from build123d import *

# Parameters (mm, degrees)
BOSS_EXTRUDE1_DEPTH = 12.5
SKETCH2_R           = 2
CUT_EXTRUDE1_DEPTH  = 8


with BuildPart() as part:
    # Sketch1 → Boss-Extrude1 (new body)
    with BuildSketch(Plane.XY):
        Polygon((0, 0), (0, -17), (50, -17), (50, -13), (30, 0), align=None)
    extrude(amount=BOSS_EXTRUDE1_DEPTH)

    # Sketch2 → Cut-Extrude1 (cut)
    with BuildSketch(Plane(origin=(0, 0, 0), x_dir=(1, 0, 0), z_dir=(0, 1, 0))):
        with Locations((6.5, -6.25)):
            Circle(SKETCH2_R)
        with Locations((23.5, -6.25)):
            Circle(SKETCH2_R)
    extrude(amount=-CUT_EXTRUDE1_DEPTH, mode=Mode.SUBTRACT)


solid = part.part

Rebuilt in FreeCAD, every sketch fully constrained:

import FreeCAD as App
import Part
import Sketcher
Q = App.Units.Quantity


def add_polygon(sketch, points):
    """Adds a closed chain of lines whose ends are joined by coincident constraints."""
    first, n = sketch.GeometryCount, len(points)
    for a, b in zip(points, points[1:] + points[:1]):
        sketch.addGeometry(Part.LineSegment(App.Vector(*a, 0), App.Vector(*b, 0)), False)
    for i in range(n):
        sketch.addConstraint(Sketcher.Constraint("Coincident", first + i, 2, first + (i + 1) % n, 1))

doc = App.newDocument("Part")
params = doc.addObject("Spreadsheet::Sheet", "Params")
for row, (alias, value) in enumerate([
    ("sketch1_width", "50 mm"),
    ("sketch1_width2", "30 mm"),
    ("sketch1_height", "17 mm"),
    ("sketch1_height2", "4 mm"),
    ("pad1_length", "12.5 mm"),
    ("sketch2_diameter", "4 mm"),
    ("pocket1_length", "8 mm"),
], start=1):
    params.set(f"A{row}", alias)
    params.set(f"B{row}", "=" + value)
    params.setAlias(f"B{row}", alias)

body = doc.addObject("PartDesign::Body", "Body")

# Sketch on XY plane
sketch1 = doc.addObject("Sketcher::SketchObject", "Sketch")
body.addObject(sketch1)
sketch1.AttachmentSupport = (doc.XY_Plane, [""])
sketch1.MapMode = "FlatFace"
add_polygon(sketch1, [(0, 0), (0, -17), (50, -17), (50, -13), (30, 0)])  # lines 0-4
sketch1.addConstraint([
    Sketcher.Constraint("Vertical", 0),
    Sketcher.Constraint("Horizontal", 1),
    Sketcher.Constraint("Vertical", 2),
    Sketcher.Constraint("Horizontal", 4),
    Sketcher.Constraint("Coincident", 4, 2, -1, 1),
    Sketcher.Constraint("DistanceX", 1, 1, 1, 2, Q("50 mm")),
    Sketcher.Constraint("DistanceX", 4, 2, 4, 1, Q("30 mm")),
    Sketcher.Constraint("DistanceY", 0, 2, 0, 1, Q("17 mm")),
    Sketcher.Constraint("DistanceY", 2, 1, 2, 2, Q("4 mm")),
])
sketch1.setExpression("Constraints[10]", "Params.sketch1_width")
sketch1.setExpression("Constraints[11]", "Params.sketch1_width2")
sketch1.setExpression("Constraints[12]", "Params.sketch1_height")
sketch1.setExpression("Constraints[13]", "Params.sketch1_height2")
pad1 = doc.addObject("PartDesign::Pad", "Pad")
body.addObject(pad1)
pad1.Profile = sketch1
pad1.setExpression("Length", "Params.pad1_length")

# Sketch on XZ plane
sketch2 = doc.addObject("Sketcher::SketchObject", "Sketch001")
body.addObject(sketch2)
sketch2.AttachmentSupport = (doc.XZ_Plane, [""])
sketch2.MapMode = "FlatFace"
sketch2.addGeometry([
    Part.Circle(App.Vector(6.5, 6.25, 0), App.Vector(0, 0, 1), 2),
    Part.Circle(App.Vector(23.5, 6.25, 0), App.Vector(0, 0, 1), 2),
], False)
sketch2.addConstraint([
    Sketcher.Constraint("Equal", 0, 1),
    Sketcher.Constraint("Horizontal", 0, 3, 1, 3),
    Sketcher.Constraint("Diameter", 0, Q("4 mm")),
    Sketcher.Constraint("DistanceX", 0, 3, 1, 3, Q("17 mm")),
    Sketcher.Constraint("DistanceX", -1, 1, 0, 3, Q("6.5 mm")),
    Sketcher.Constraint("DistanceY", -1, 1, 0, 3, Q("6.25 mm")),
])
sketch2.setExpression("Constraints[2]", "Params.sketch2_diameter")
pocket1 = doc.addObject("PartDesign::Pocket", "Pocket")
body.addObject(pocket1)
pocket1.Profile = sketch2
pocket1.setExpression("Length", "Params.pocket1_length")
pocket1.Reversed = True

doc.recompute()
